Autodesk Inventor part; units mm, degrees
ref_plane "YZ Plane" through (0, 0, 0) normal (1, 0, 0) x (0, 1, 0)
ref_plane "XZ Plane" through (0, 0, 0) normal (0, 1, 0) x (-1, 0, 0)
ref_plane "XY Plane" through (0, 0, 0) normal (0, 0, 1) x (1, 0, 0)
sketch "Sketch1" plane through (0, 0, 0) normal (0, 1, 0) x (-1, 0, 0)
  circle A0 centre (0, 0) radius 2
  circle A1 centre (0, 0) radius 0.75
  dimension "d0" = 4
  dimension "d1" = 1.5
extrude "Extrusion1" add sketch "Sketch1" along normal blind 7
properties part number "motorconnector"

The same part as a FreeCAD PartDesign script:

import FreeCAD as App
import Part
import Sketcher

V = App.Vector
Q = App.Units.Quantity

doc = App.newDocument("Part")
body = doc.addObject("PartDesign::Body", "Body")

sketch1 = body.newObject("Sketcher::SketchObject", "Sketch")
sketch1.AttachmentSupport = (doc.getObject("XZ_Plane"), [""])
sketch1.MapMode = "FlatFace"
sketch1.addGeometry([
    Part.Circle(V(0, 0, 0), V(0, 0, 1), 2),
    Part.Circle(V(0, 0, 0), V(0, 0, 1), 0.75),
], False)
sketch1.addConstraint([
    Sketcher.Constraint("Coincident", 0, 3, -1, 1),
    Sketcher.Constraint("Coincident", 1, 3, -1, 1),
    Sketcher.Constraint("Diameter", 0, Q("4 mm")),
    Sketcher.Constraint("Diameter", 1, Q("1.5 mm")),
])
pad1 = body.newObject("PartDesign::Pad", "Pad")
pad1.Profile = sketch1
pad1.Length = 7
pad1.Reversed = True

doc.recompute()
